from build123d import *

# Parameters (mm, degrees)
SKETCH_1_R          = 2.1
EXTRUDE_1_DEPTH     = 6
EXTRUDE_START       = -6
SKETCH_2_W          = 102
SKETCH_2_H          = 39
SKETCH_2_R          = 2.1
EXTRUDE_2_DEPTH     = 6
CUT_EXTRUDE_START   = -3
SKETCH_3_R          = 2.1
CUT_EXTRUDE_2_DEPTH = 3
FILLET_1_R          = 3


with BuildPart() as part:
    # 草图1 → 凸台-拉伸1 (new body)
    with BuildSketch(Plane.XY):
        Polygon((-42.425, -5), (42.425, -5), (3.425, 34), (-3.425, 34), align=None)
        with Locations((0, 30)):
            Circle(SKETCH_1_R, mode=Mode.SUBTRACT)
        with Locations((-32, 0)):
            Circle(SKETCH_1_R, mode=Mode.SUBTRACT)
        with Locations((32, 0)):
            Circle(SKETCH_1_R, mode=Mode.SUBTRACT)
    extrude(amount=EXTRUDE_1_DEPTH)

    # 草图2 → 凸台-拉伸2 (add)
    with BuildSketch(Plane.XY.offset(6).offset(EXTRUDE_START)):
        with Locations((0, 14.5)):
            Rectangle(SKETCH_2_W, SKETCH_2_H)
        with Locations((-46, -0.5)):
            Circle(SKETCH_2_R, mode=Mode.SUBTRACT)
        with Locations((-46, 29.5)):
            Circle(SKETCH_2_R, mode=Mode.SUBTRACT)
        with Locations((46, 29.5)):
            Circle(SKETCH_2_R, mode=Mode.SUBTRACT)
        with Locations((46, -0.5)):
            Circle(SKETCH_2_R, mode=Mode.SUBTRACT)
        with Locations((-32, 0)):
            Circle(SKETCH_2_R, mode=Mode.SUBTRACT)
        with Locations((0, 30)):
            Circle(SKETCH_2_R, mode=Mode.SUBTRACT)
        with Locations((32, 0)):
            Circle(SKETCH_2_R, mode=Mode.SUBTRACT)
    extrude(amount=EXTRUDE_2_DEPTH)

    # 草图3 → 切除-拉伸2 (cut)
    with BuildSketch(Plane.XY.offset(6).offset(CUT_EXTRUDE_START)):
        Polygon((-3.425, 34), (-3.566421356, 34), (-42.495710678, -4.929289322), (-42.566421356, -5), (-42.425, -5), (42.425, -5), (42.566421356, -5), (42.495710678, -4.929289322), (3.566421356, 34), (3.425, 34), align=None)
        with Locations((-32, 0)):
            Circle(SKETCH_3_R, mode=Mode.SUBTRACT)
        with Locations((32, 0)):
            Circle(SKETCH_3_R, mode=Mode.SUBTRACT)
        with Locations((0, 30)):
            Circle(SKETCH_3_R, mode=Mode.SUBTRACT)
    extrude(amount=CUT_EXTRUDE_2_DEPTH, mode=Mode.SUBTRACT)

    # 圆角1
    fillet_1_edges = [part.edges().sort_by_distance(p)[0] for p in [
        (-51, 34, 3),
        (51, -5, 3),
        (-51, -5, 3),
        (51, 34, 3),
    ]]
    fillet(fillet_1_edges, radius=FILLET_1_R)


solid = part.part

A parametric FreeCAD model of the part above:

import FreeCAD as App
import Part
import Sketcher


def edges_at(feature, points):
    """Names of the edges that pass closest to the given points."""
    edges = feature.Shape.Edges
    near = lambda p: min(range(len(edges)), key=lambda i: edges[i].distToShape(Part.Vertex(*p))[0])
    return sorted({f"Edge{near(p) + 1}" for p in points})


def add_polygon(sketch, points):
    """Adds a closed chain of lines whose ends are joined by coincident constraints."""
    first, n = sketch.GeometryCount, len(points)
    for a, b in zip(points, points[1:] + points[:1]):
        sketch.addGeometry(Part.LineSegment(App.Vector(*a, 0), App.Vector(*b, 0)), False)
    for i in range(n):
        sketch.addConstraint(Sketcher.Constraint("Coincident", first + i, 2, first + (i + 1) % n, 1))

doc = App.newDocument("Part")
body = doc.addObject("PartDesign::Body", "Body")

sketch1 = body.newObject("Sketcher::SketchObject", "Sketch")
sketch1.AttachmentSupport = (doc.getObject("XY_Plane"), [""])
sketch1.MapMode = "FlatFace"
add_polygon(sketch1, [(-42.4, -5), (42.4, -5), (3.4, 34), (-3.4, 34)])
sketch1.addGeometry(Part.Circle(App.Vector(-32, 0, 0), App.Vector(0, 0, 1), 2.1), False)
sketch1.addGeometry(Part.Circle(App.Vector(32, 0, 0), App.Vector(0, 0, 1), 2.1), False)
sketch1.addGeometry(Part.Circle(App.Vector(0, 30, 0), App.Vector(0, 0, 1), 2.1), False)
sketch1.addConstraint([
    Sketcher.Constraint("Horizontal", 0),
    Sketcher.Constraint("Horizontal", 2),
    Sketcher.Constraint("Equal", 4, 5),
    Sketcher.Constraint("Equal", 5, 6),
    Sketcher.Constraint("Symmetric", 4, 3, 5, 3, -1, 1),
    Sketcher.Constraint("PointOnObject", 4, 3, -1),
    Sketcher.Constraint("PointOnObject", 6, 3, -2),
    Sketcher.Constraint("Perpendicular", 1, 3),
    Sketcher.Constraint("Equal", 1, 3),
    Sketcher.Constraint("Diameter", 4, 4.2),
    Sketcher.Constraint("DistanceX", 4, 3, -1, 1, 32.0),
    Sketcher.Constraint("DistanceY", -1, 1, 6, 3, 30.0),
    Sketcher.Constraint("DistanceY", 0, 2, -1, 1, 5.0),
    Sketcher.Constraint("DistanceY", -1, 1, 1, 2, 34.0),
    Sketcher.Constraint("DistanceX", 0, 1, 0, 2, 84.85),
    Sketcher.Constraint("DistanceX", -1, 1, 0, 2, 42.425),
])
pad1 = body.newObject("PartDesign::Pad", "Pad")
pad1.Profile = sketch1
pad1.Length = 6

sketch2 = body.newObject("Sketcher::SketchObject", "Sketch001")
sketch2.AttachmentSupport = (doc.getObject("XY_Plane"), [""])
sketch2.MapMode = "FlatFace"
add_polygon(sketch2, [(-51, 34), (-51, -5), (51, -5), (51, 34)])
sketch2.addGeometry(Part.Circle(App.Vector(-46, -0.5, 0), App.Vector(0, 0, 1), 2.1), False)
sketch2.addGeometry(Part.Circle(App.Vector(-32, 0, 0), App.Vector(0, 0, 1), 2.1), False)
sketch2.addGeometry(Part.Circle(App.Vector(32, 0, 0), App.Vector(0, 0, 1), 2.1), False)
sketch2.addGeometry(Part.Circle(App.Vector(46, -0.5, 0), App.Vector(0, 0, 1), 2.1), False)
sketch2.addGeometry(Part.Circle(App.Vector(-46, 29.5, 0), App.Vector(0, 0, 1), 2.1), False)
sketch2.addGeometry(Part.Circle(App.Vector(0, 30, 0), App.Vector(0, 0, 1), 2.1), False)
sketch2.addGeometry(Part.Circle(App.Vector(46, 29.5, 0), App.Vector(0, 0, 1), 2.1), False)
sketch2.addConstraint([
    Sketcher.Constraint("Vertical", 0),
    Sketcher.Constraint("Horizontal", 1),
    Sketcher.Constraint("Vertical", 2),
    Sketcher.Constraint("Horizontal", 3),
    Sketcher.Constraint("Equal", 4, 5),
    Sketcher.Constraint("Equal", 5, 6),
    Sketcher.Constraint("Equal", 6, 7),
    Sketcher.Constraint("Equal", 7, 8),
    Sketcher.Constraint("Equal", 8, 9),
    Sketcher.Constraint("Equal", 9, 10),
    Sketcher.Constraint("Symmetric", 5, 3, 6, 3, -1, 1),
    Sketcher.Constraint("Symmetric", 4, 3, 7, 3, -2),
    Sketcher.Constraint("Symmetric", 8, 3, 10, 3, -2),
    Sketcher.Constraint("PointOnObject", 5, 3, -1),
    Sketcher.Constraint("PointOnObject", 9, 3, -2),
    Sketcher.Constraint("Vertical", 4, 3, 8, 3),
    Sketcher.Constraint("Diameter", 4, 4.2),
    Sketcher.Constraint("DistanceX", 1, 1, 1, 2, 102.0),
    Sketcher.Constraint("DistanceY", 0, 2, 0, 1, 39.0),
    Sketcher.Constraint("DistanceX", 4, 3, -1, 1, 46.0),
    Sketcher.Constraint("DistanceX", 5, 3, -1, 1, 32.0),
    Sketcher.Constraint("DistanceY", -1, 1, 9, 3, 30.0),
    Sketcher.Constraint("DistanceX", 0, 2, -1, 1, 51.0),
    Sketcher.Constraint("DistanceY", 0, 2, -1, 1, 5.0),
    Sketcher.Constraint("DistanceY", 4, 3, 8, 3, 30.0),
    Sketcher.Constraint("DistanceY", 4, 3, -1, 1, 0.5),
])
pad2 = body.newObject("PartDesign::Pad", "Pad001")
pad2.Profile = sketch2
pad2.Length = 6

sketch3 = body.newObject("Sketcher::SketchObject", "Sketch002")
sketch3.AttachmentSupport = (doc.getObject("XY_Plane"), [""])
sketch3.MapMode = "FlatFace"
sketch3.AttachmentOffset = App.Placement(App.Vector(0, 0, 3), App.Rotation())
add_polygon(sketch3, [(-3.6, 34), (-42.6, -5), (42.6, -5), (3.6, 34)])
sketch3.addGeometry(Part.Circle(App.Vector(-32, 0, 0), App.Vector(0, 0, 1), 2.1), False)
sketch3.addGeometry(Part.Circle(App.Vector(32, 0, 0), App.Vector(0, 0, 1), 2.1), False)
sketch3.addGeometry(Part.Circle(App.Vector(0, 30, 0), App.Vector(0, 0, 1), 2.1), False)
sketch3.addConstraint([
    Sketcher.Constraint("Horizontal", 1),
    Sketcher.Constraint("Horizontal", 3),
    Sketcher.Constraint("Equal", 4, 5),
    Sketcher.Constraint("Equal", 5, 6),
    Sketcher.Constraint("Symmetric", 4, 3, 5, 3, -1, 1),
    Sketcher.Constraint("PointOnObject", 4, 3, -1),
    Sketcher.Constraint("PointOnObject", 6, 3, -2),
    Sketcher.Constraint("Perpendicular", 0, 2),
    Sketcher.Constraint("Equal", 0, 2),
    Sketcher.Constraint("Diameter", 4, 4.2),
    Sketcher.Constraint("DistanceX", 4, 3, -1, 1, 32.0),
    Sketcher.Constraint("DistanceY", -1, 1, 6, 3, 30.0),
    Sketcher.Constraint("DistanceY", 0, 2, -1, 1, 5.0),
    Sketcher.Constraint("DistanceY", -1, 1, 2, 2, 34.0),
    Sketcher.Constraint("DistanceX", 1, 1, 1, 2, 85.132843),
    Sketcher.Constraint("DistanceX", 0, 2, -1, 1, 42.566421),
])
pocket1 = body.newObject("PartDesign::Pocket", "Pocket")
pocket1.Profile = sketch3
pocket1.Length = 3
pocket1.Reversed = True
doc.recompute()

fillet = body.newObject("PartDesign::Fillet", "Fillet")
fillet.Base = (pocket1, edges_at(pocket1, [
    (-51, 34, 3),
    (51, -5, 3),
    (-51, -5, 3),
    (51, 34, 3),
]))
fillet.Radius = 3

doc.recompute()
